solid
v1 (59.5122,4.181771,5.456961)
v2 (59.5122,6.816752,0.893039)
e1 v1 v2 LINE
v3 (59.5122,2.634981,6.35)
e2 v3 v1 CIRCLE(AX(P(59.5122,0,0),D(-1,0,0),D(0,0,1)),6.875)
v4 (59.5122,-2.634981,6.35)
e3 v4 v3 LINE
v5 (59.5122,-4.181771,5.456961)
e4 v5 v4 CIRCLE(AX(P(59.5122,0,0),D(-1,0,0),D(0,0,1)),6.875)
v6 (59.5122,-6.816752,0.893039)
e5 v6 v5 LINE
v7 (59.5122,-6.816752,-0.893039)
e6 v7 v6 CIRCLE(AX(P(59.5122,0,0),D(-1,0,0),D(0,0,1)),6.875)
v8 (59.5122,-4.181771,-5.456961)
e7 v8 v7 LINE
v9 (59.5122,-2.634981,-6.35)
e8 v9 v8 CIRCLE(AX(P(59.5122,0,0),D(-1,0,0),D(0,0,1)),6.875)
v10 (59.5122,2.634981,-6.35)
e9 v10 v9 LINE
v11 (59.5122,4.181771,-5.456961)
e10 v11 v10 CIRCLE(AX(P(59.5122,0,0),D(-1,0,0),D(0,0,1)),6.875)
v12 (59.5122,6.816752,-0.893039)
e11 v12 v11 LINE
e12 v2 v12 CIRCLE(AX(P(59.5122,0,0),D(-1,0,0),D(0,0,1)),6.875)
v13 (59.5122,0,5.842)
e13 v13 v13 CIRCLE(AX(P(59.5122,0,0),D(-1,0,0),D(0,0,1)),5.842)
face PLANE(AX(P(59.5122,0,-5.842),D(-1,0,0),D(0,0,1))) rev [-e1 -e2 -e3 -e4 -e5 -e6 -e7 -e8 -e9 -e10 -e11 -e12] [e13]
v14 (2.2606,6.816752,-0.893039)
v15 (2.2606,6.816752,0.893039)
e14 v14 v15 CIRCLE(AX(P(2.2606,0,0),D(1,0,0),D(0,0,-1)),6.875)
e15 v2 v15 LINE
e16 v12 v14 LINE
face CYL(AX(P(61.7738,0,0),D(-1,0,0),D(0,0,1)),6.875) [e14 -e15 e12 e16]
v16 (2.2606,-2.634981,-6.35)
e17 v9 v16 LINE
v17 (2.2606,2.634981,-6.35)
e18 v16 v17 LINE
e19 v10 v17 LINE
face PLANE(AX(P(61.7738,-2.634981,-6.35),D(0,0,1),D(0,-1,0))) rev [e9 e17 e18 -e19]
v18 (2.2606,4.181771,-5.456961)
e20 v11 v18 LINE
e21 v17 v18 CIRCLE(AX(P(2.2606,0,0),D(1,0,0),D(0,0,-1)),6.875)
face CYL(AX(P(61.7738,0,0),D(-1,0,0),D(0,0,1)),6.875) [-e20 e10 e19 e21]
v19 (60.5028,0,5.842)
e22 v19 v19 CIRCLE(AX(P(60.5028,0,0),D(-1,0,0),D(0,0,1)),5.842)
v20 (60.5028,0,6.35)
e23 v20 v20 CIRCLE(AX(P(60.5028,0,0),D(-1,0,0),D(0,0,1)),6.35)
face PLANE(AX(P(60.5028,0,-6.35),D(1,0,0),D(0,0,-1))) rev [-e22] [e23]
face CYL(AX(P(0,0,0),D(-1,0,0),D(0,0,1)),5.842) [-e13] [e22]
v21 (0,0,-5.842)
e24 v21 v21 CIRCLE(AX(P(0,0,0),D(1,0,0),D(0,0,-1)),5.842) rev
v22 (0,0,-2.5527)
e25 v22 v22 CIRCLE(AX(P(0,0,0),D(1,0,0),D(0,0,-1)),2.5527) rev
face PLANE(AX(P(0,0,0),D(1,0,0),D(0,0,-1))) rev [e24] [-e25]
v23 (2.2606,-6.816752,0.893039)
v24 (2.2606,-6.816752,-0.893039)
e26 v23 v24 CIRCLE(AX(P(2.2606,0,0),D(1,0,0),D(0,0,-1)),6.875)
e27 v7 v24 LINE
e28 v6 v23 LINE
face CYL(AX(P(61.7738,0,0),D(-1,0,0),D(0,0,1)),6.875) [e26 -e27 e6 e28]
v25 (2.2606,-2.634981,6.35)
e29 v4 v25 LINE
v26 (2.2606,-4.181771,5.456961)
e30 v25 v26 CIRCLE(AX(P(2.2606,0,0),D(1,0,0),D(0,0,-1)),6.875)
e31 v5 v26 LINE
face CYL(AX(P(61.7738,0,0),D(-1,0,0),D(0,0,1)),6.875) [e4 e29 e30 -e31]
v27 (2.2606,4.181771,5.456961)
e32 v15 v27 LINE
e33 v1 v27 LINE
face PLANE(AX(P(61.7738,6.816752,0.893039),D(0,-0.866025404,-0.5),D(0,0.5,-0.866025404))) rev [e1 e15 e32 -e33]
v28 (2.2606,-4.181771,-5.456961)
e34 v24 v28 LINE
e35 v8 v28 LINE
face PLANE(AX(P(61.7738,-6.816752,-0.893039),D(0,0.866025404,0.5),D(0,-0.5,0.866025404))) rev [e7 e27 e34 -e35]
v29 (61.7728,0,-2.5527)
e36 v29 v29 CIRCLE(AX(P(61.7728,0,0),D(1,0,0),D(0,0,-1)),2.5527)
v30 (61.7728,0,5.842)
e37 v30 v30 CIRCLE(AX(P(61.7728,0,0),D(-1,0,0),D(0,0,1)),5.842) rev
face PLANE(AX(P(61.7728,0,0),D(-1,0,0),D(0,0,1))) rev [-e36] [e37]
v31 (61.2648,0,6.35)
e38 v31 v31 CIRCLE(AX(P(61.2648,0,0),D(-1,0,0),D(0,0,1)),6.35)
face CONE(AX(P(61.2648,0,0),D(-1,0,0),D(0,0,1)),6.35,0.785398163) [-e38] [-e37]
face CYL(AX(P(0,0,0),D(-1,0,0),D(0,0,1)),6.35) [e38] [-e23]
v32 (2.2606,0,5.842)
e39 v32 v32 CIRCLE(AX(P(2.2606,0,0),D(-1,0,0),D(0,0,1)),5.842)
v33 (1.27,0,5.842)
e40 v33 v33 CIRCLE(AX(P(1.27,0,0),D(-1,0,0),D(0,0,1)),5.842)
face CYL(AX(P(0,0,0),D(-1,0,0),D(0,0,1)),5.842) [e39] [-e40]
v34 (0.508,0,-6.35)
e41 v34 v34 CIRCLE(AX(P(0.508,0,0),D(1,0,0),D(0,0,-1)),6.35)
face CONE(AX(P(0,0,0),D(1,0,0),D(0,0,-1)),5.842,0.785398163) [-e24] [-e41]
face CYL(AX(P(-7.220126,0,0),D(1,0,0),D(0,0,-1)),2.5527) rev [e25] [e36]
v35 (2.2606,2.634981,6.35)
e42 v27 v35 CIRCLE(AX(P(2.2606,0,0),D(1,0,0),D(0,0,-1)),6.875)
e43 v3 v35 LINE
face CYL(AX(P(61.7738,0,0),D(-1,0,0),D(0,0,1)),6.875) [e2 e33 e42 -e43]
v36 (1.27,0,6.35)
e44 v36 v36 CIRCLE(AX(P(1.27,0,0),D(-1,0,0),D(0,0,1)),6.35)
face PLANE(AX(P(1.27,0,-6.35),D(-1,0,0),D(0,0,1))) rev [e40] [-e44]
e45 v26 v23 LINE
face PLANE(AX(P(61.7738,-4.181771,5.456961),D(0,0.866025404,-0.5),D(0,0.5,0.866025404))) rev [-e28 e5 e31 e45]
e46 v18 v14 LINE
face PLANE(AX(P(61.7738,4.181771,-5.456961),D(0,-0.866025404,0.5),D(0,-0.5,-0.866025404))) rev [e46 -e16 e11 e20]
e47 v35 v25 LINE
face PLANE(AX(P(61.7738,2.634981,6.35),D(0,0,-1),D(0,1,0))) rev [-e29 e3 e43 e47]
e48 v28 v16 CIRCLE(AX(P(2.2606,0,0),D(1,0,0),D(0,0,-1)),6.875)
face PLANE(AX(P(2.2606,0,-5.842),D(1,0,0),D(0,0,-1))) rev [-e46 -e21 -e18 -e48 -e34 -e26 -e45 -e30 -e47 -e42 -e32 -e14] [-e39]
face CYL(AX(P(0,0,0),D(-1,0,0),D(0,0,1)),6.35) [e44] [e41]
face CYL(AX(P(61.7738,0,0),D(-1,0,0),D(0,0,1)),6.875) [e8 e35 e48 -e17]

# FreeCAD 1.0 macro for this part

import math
import FreeCAD as App
import Part
import Sketcher
Q = App.Units.Quantity


def edges_at(feature, points):
    """Names of the edges that pass closest to the given points."""
    edges = feature.Shape.Edges
    near = lambda p: min(range(len(edges)), key=lambda i: edges[i].distToShape(Part.Vertex(*p))[0])
    return sorted({f"Edge{near(p) + 1}" for p in points})

doc = App.newDocument("Part")
body = doc.addObject("PartDesign::Body", "Body")

# Sketch on XZ plane
sketch1 = body.newObject("Sketcher::SketchObject", "Sketch")
sketch1.AttachmentSupport = (doc.getObject("XZ_Plane"), [""])
sketch1.MapMode = "FlatFace"
sketch1.addGeometry([
    Part.LineSegment(App.Vector(1.3, -5.8, 0), App.Vector(1.3, -6.3, 0)),  # 0
    Part.LineSegment(App.Vector(1.3, -6.3, 0), App.Vector(0, -6.3, 0)),  # 1
    Part.LineSegment(App.Vector(0, -6.3, 0), App.Vector(0, 0, 0)),  # 2
    Part.LineSegment(App.Vector(0, 0, 0), App.Vector(61.8, 0, 0)),  # 3
    Part.LineSegment(App.Vector(61.8, 0, 0), App.Vector(61.8, -6.3, 0)),  # 4
    Part.LineSegment(App.Vector(61.8, -6.3, 0), App.Vector(60.5, -6.3, 0)),  # 5
    Part.LineSegment(App.Vector(60.5, -6.3, 0), App.Vector(60.5, -5.8, 0)),  # 6
    Part.LineSegment(App.Vector(60.5, -5.8, 0), App.Vector(59.5, -5.8, 0)),  # 7
    Part.LineSegment(App.Vector(59.5, -5.8, 0), App.Vector(59.5, -7.6, 0)),  # 8
    Part.LineSegment(App.Vector(59.5, -7.6, 0), App.Vector(2.3, -7.6, 0)),  # 9
    Part.LineSegment(App.Vector(2.3, -7.6, 0), App.Vector(2.3, -5.8, 0)),  # 10
    Part.LineSegment(App.Vector(2.3, -5.8, 0), App.Vector(1.3, -5.8, 0)),  # 11
], False)
sketch1.addConstraint([
    Sketcher.Constraint("Coincident", 0, 2, 1, 1),
    Sketcher.Constraint("Coincident", 1, 2, 2, 1),
    Sketcher.Constraint("Coincident", 2, 2, 3, 1),
    Sketcher.Constraint("Coincident", 3, 2, 4, 1),
    Sketcher.Constraint("Coincident", 4, 2, 5, 1),
    Sketcher.Constraint("Coincident", 5, 2, 6, 1),
    Sketcher.Constraint("Coincident", 6, 2, 7, 1),
    Sketcher.Constraint("Coincident", 7, 2, 8, 1),
    Sketcher.Constraint("Coincident", 8, 2, 9, 1),
    Sketcher.Constraint("Coincident", 9, 2, 10, 1),
    Sketcher.Constraint("Coincident", 10, 2, 11, 1),
    Sketcher.Constraint("Coincident", 11, 2, 0, 1),
    Sketcher.Constraint("Vertical", 0),
    Sketcher.Constraint("Horizontal", 1),
    Sketcher.Constraint("Vertical", 2),
    Sketcher.Constraint("Horizontal", 3),
    Sketcher.Constraint("Vertical", 4),
    Sketcher.Constraint("Horizontal", 5),
    Sketcher.Constraint("Vertical", 6),
    Sketcher.Constraint("Horizontal", 7),
    Sketcher.Constraint("Vertical", 8),
    Sketcher.Constraint("Horizontal", 9),
    Sketcher.Constraint("Vertical", 10),
    Sketcher.Constraint("Horizontal", 11),
    Sketcher.Constraint("Coincident", 2, 2, -1, 1),
    Sketcher.Constraint("Horizontal", 1, 2, 4, 2),
    Sketcher.Constraint("Horizontal", 7, 2, 10, 2),
    Sketcher.Constraint("Equal", 1, 5),
    Sketcher.Constraint("Equal", 7, 11),
    Sketcher.Constraint("DistanceX", 1, 2, 1, 1, Q("0.05 in")),
    Sketcher.Constraint("DistanceY", 0, 2, 0, 1, Q("0.02 in")),
    Sketcher.Constraint("DistanceY", 2, 1, 2, 2, Q("0.25 in")),
    Sketcher.Constraint("DistanceY", 8, 2, 8, 1, Q("0.07 in")),
    Sketcher.Constraint("DistanceX", 3, 1, 3, 2, Q("2.432 in")),
    Sketcher.Constraint("DistanceX", 7, 2, 7, 1, Q("0.039 in")),
])
revolution = body.newObject("PartDesign::Revolution", "Revolution")
revolution.Profile = sketch1
revolution.ReferenceAxis = (sketch1, ["H_Axis"])
revolution.Angle = 360

# Sketch on YZ plane
sketch2 = body.newObject("Sketcher::SketchObject", "Sketch001")
sketch2.AttachmentSupport = (doc.getObject("YZ_Plane"), [""])
sketch2.MapMode = "FlatFace"
sketch2.AttachmentOffset = App.Placement(App.Vector(0, 0, 0.089 * 25.4), App.Rotation())
sketch2.addGeometry([
    Part.LineSegment(App.Vector(15.2, 15.2, 0), App.Vector(-15.2, 15.2, 0)),  # 0
    Part.LineSegment(App.Vector(-15.2, 15.2, 0), App.Vector(-15.2, -15.2, 0)),  # 1
    Part.LineSegment(App.Vector(-15.2, -15.2, 0), App.Vector(15.2, -15.2, 0)),  # 2
    Part.LineSegment(App.Vector(15.2, -15.2, 0), App.Vector(15.2, 15.2, 0)),  # 3
    Part.LineSegment(App.Vector(6.8, -0.9, 0), App.Vector(4.2, -5.5, 0)),  # 4
    Part.ArcOfCircle(Part.Circle(App.Vector(0, 0, 0), App.Vector(0, 0, 1), 6.9), math.radians(-67.46), math.radians(-52.54)),  # 5
    Part.LineSegment(App.Vector(2.6, -6.3, 0), App.Vector(-2.6, -6.3, 0)),  # 6
    Part.ArcOfCircle(Part.Circle(App.Vector(0, 0, 0), App.Vector(0, 0, 1), 6.9), math.radians(-127.46), math.radians(-112.54)),  # 7
    Part.LineSegment(App.Vector(-4.2, -5.5, 0), App.Vector(-6.8, -0.9, 0)),  # 8
    Part.ArcOfCircle(Part.Circle(App.Vector(0, 0, 0), App.Vector(0, 0, 1), 6.9), math.radians(172.54), math.radians(187.46)),  # 9
    Part.LineSegment(App.Vector(-6.8, 0.9, 0), App.Vector(-4.2, 5.5, 0)),  # 10
    Part.ArcOfCircle(Part.Circle(App.Vector(0, 0, 0), App.Vector(0, 0, 1), 6.9), math.radians(112.54), math.radians(127.46)),  # 11
    Part.LineSegment(App.Vector(-2.6, 6.3, 0), App.Vector(2.6, 6.3, 0)),  # 12
    Part.ArcOfCircle(Part.Circle(App.Vector(0, 0, 0), App.Vector(0, 0, 1), 6.9), math.radians(52.54), math.radians(67.46)),  # 13
    Part.LineSegment(App.Vector(4.2, 5.5, 0), App.Vector(6.8, 0.9, 0)),  # 14
    Part.ArcOfCircle(Part.Circle(App.Vector(0, 0, 0), App.Vector(0, 0, 1), 6.9), math.radians(-7.46), math.radians(7.46)),  # 15
], False)
sketch2.addConstraint([
    Sketcher.Constraint("Coincident", 0, 2, 1, 1),
    Sketcher.Constraint("Coincident", 1, 2, 2, 1),
    Sketcher.Constraint("Coincident", 2, 2, 3, 1),
    Sketcher.Constraint("Coincident", 3, 2, 0, 1),
    Sketcher.Constraint("Coincident", 4, 2, 5, 2),
    Sketcher.Constraint("Coincident", 5, 1, 6, 1),
    Sketcher.Constraint("Coincident", 6, 2, 7, 2),
    Sketcher.Constraint("Coincident", 7, 1, 8, 1),
    Sketcher.Constraint("Coincident", 8, 2, 9, 2),
    Sketcher.Constraint("Coincident", 9, 1, 10, 1),
    Sketcher.Constraint("Coincident", 10, 2, 11, 2),
    Sketcher.Constraint("Coincident", 11, 1, 12, 1),
    Sketcher.Constraint("Coincident", 12, 2, 13, 2),
    Sketcher.Constraint("Coincident", 13, 1, 14, 1),
    Sketcher.Constraint("Coincident", 14, 2, 15, 2),
    Sketcher.Constraint("Coincident", 15, 1, 4, 1),
    Sketcher.Constraint("Horizontal", 0),
    Sketcher.Constraint("Vertical", 1),
    Sketcher.Constraint("Horizontal", 2),
    Sketcher.Constraint("Vertical", 3),
    Sketcher.Constraint("Horizontal", 6),
    Sketcher.Constraint("Horizontal", 12),
    Sketcher.Constraint("Coincident", 5, 3, -1, 1),
    Sketcher.Constraint("Coincident", 7, 3, -1, 1),
    Sketcher.Constraint("Coincident", 9, 3, -1, 1),
    Sketcher.Constraint("Coincident", 11, 3, -1, 1),
    Sketcher.Constraint("Coincident", 13, 3, -1, 1),
    Sketcher.Constraint("Coincident", 15, 3, -1, 1),
    Sketcher.Constraint("Equal", 5, 7),
    Sketcher.Constraint("Equal", 7, 9),
    Sketcher.Constraint("Equal", 9, 11),
    Sketcher.Constraint("Equal", 11, 13),
    Sketcher.Constraint("Equal", 13, 15),
    Sketcher.Constraint("Symmetric", 0, 2, 2, 2, -1, 1),
    Sketcher.Constraint("Parallel", 4, 10),
    Sketcher.Constraint("Parallel", 8, 14),
    Sketcher.Constraint("Horizontal", 4, 2, 7, 1),
    Sketcher.Constraint("Horizontal", 10, 2, 13, 1),
    Sketcher.Constraint("Horizontal", 9, 1, 14, 2),
    Sketcher.Constraint("Vertical", 8, 2, 9, 1),
    Sketcher.Constraint("Vertical", 6, 2, 11, 1),
    Sketcher.Constraint("Equal", 2, 1),
    Sketcher.Constraint("Angle", 4, Q("-120 deg")),
    Sketcher.Constraint("DistanceY", 5, 1, -1, 1, Q("0.25 in")),
    Sketcher.Constraint("Radius", 5, Q("6.875 mm")),
    Sketcher.Constraint("DistanceY", 7, 1, 9, 1, Q("0.25 in")),
    Sketcher.Constraint("DistanceX", 0, 2, 0, 1, Q("30.324 mm")),
])
pocket1 = body.newObject("PartDesign::Pocket", "Pocket")
pocket1.Profile = sketch2
pocket1.Length = Q("2.254 in")
pocket1.Reversed = True

# Sketch on YZ plane
sketch3 = body.newObject("Sketcher::SketchObject", "Sketch002")
sketch3.AttachmentSupport = (doc.getObject("YZ_Plane"), [""])
sketch3.MapMode = "FlatFace"
sketch3.AttachmentOffset = App.Placement(App.Vector(0, 0, 2.432 * 25.4), App.Rotation())
sketch3.addGeometry(Part.Circle(App.Vector(0, 0, 0), App.Vector(0, 0, 1), 2.6), False)
sketch3.addConstraint([
    Sketcher.Constraint("Coincident", 0, 3, -1, 1),
    Sketcher.Constraint("Diameter", 0, Q("0.201 in")),
])
pocket2 = body.newObject("PartDesign::Pocket", "Pocket001")
pocket2.Profile = sketch3
pocket2.Length = Q("2.432 in")
doc.recompute()

chamfer = body.newObject("PartDesign::Chamfer", "Chamfer")
chamfer.Base = (pocket2, edges_at(pocket2, [(0, 0, -6.35), (61.773, 0, -6.35)]))
chamfer.Size = Q("0.02 in")

doc.recompute()
